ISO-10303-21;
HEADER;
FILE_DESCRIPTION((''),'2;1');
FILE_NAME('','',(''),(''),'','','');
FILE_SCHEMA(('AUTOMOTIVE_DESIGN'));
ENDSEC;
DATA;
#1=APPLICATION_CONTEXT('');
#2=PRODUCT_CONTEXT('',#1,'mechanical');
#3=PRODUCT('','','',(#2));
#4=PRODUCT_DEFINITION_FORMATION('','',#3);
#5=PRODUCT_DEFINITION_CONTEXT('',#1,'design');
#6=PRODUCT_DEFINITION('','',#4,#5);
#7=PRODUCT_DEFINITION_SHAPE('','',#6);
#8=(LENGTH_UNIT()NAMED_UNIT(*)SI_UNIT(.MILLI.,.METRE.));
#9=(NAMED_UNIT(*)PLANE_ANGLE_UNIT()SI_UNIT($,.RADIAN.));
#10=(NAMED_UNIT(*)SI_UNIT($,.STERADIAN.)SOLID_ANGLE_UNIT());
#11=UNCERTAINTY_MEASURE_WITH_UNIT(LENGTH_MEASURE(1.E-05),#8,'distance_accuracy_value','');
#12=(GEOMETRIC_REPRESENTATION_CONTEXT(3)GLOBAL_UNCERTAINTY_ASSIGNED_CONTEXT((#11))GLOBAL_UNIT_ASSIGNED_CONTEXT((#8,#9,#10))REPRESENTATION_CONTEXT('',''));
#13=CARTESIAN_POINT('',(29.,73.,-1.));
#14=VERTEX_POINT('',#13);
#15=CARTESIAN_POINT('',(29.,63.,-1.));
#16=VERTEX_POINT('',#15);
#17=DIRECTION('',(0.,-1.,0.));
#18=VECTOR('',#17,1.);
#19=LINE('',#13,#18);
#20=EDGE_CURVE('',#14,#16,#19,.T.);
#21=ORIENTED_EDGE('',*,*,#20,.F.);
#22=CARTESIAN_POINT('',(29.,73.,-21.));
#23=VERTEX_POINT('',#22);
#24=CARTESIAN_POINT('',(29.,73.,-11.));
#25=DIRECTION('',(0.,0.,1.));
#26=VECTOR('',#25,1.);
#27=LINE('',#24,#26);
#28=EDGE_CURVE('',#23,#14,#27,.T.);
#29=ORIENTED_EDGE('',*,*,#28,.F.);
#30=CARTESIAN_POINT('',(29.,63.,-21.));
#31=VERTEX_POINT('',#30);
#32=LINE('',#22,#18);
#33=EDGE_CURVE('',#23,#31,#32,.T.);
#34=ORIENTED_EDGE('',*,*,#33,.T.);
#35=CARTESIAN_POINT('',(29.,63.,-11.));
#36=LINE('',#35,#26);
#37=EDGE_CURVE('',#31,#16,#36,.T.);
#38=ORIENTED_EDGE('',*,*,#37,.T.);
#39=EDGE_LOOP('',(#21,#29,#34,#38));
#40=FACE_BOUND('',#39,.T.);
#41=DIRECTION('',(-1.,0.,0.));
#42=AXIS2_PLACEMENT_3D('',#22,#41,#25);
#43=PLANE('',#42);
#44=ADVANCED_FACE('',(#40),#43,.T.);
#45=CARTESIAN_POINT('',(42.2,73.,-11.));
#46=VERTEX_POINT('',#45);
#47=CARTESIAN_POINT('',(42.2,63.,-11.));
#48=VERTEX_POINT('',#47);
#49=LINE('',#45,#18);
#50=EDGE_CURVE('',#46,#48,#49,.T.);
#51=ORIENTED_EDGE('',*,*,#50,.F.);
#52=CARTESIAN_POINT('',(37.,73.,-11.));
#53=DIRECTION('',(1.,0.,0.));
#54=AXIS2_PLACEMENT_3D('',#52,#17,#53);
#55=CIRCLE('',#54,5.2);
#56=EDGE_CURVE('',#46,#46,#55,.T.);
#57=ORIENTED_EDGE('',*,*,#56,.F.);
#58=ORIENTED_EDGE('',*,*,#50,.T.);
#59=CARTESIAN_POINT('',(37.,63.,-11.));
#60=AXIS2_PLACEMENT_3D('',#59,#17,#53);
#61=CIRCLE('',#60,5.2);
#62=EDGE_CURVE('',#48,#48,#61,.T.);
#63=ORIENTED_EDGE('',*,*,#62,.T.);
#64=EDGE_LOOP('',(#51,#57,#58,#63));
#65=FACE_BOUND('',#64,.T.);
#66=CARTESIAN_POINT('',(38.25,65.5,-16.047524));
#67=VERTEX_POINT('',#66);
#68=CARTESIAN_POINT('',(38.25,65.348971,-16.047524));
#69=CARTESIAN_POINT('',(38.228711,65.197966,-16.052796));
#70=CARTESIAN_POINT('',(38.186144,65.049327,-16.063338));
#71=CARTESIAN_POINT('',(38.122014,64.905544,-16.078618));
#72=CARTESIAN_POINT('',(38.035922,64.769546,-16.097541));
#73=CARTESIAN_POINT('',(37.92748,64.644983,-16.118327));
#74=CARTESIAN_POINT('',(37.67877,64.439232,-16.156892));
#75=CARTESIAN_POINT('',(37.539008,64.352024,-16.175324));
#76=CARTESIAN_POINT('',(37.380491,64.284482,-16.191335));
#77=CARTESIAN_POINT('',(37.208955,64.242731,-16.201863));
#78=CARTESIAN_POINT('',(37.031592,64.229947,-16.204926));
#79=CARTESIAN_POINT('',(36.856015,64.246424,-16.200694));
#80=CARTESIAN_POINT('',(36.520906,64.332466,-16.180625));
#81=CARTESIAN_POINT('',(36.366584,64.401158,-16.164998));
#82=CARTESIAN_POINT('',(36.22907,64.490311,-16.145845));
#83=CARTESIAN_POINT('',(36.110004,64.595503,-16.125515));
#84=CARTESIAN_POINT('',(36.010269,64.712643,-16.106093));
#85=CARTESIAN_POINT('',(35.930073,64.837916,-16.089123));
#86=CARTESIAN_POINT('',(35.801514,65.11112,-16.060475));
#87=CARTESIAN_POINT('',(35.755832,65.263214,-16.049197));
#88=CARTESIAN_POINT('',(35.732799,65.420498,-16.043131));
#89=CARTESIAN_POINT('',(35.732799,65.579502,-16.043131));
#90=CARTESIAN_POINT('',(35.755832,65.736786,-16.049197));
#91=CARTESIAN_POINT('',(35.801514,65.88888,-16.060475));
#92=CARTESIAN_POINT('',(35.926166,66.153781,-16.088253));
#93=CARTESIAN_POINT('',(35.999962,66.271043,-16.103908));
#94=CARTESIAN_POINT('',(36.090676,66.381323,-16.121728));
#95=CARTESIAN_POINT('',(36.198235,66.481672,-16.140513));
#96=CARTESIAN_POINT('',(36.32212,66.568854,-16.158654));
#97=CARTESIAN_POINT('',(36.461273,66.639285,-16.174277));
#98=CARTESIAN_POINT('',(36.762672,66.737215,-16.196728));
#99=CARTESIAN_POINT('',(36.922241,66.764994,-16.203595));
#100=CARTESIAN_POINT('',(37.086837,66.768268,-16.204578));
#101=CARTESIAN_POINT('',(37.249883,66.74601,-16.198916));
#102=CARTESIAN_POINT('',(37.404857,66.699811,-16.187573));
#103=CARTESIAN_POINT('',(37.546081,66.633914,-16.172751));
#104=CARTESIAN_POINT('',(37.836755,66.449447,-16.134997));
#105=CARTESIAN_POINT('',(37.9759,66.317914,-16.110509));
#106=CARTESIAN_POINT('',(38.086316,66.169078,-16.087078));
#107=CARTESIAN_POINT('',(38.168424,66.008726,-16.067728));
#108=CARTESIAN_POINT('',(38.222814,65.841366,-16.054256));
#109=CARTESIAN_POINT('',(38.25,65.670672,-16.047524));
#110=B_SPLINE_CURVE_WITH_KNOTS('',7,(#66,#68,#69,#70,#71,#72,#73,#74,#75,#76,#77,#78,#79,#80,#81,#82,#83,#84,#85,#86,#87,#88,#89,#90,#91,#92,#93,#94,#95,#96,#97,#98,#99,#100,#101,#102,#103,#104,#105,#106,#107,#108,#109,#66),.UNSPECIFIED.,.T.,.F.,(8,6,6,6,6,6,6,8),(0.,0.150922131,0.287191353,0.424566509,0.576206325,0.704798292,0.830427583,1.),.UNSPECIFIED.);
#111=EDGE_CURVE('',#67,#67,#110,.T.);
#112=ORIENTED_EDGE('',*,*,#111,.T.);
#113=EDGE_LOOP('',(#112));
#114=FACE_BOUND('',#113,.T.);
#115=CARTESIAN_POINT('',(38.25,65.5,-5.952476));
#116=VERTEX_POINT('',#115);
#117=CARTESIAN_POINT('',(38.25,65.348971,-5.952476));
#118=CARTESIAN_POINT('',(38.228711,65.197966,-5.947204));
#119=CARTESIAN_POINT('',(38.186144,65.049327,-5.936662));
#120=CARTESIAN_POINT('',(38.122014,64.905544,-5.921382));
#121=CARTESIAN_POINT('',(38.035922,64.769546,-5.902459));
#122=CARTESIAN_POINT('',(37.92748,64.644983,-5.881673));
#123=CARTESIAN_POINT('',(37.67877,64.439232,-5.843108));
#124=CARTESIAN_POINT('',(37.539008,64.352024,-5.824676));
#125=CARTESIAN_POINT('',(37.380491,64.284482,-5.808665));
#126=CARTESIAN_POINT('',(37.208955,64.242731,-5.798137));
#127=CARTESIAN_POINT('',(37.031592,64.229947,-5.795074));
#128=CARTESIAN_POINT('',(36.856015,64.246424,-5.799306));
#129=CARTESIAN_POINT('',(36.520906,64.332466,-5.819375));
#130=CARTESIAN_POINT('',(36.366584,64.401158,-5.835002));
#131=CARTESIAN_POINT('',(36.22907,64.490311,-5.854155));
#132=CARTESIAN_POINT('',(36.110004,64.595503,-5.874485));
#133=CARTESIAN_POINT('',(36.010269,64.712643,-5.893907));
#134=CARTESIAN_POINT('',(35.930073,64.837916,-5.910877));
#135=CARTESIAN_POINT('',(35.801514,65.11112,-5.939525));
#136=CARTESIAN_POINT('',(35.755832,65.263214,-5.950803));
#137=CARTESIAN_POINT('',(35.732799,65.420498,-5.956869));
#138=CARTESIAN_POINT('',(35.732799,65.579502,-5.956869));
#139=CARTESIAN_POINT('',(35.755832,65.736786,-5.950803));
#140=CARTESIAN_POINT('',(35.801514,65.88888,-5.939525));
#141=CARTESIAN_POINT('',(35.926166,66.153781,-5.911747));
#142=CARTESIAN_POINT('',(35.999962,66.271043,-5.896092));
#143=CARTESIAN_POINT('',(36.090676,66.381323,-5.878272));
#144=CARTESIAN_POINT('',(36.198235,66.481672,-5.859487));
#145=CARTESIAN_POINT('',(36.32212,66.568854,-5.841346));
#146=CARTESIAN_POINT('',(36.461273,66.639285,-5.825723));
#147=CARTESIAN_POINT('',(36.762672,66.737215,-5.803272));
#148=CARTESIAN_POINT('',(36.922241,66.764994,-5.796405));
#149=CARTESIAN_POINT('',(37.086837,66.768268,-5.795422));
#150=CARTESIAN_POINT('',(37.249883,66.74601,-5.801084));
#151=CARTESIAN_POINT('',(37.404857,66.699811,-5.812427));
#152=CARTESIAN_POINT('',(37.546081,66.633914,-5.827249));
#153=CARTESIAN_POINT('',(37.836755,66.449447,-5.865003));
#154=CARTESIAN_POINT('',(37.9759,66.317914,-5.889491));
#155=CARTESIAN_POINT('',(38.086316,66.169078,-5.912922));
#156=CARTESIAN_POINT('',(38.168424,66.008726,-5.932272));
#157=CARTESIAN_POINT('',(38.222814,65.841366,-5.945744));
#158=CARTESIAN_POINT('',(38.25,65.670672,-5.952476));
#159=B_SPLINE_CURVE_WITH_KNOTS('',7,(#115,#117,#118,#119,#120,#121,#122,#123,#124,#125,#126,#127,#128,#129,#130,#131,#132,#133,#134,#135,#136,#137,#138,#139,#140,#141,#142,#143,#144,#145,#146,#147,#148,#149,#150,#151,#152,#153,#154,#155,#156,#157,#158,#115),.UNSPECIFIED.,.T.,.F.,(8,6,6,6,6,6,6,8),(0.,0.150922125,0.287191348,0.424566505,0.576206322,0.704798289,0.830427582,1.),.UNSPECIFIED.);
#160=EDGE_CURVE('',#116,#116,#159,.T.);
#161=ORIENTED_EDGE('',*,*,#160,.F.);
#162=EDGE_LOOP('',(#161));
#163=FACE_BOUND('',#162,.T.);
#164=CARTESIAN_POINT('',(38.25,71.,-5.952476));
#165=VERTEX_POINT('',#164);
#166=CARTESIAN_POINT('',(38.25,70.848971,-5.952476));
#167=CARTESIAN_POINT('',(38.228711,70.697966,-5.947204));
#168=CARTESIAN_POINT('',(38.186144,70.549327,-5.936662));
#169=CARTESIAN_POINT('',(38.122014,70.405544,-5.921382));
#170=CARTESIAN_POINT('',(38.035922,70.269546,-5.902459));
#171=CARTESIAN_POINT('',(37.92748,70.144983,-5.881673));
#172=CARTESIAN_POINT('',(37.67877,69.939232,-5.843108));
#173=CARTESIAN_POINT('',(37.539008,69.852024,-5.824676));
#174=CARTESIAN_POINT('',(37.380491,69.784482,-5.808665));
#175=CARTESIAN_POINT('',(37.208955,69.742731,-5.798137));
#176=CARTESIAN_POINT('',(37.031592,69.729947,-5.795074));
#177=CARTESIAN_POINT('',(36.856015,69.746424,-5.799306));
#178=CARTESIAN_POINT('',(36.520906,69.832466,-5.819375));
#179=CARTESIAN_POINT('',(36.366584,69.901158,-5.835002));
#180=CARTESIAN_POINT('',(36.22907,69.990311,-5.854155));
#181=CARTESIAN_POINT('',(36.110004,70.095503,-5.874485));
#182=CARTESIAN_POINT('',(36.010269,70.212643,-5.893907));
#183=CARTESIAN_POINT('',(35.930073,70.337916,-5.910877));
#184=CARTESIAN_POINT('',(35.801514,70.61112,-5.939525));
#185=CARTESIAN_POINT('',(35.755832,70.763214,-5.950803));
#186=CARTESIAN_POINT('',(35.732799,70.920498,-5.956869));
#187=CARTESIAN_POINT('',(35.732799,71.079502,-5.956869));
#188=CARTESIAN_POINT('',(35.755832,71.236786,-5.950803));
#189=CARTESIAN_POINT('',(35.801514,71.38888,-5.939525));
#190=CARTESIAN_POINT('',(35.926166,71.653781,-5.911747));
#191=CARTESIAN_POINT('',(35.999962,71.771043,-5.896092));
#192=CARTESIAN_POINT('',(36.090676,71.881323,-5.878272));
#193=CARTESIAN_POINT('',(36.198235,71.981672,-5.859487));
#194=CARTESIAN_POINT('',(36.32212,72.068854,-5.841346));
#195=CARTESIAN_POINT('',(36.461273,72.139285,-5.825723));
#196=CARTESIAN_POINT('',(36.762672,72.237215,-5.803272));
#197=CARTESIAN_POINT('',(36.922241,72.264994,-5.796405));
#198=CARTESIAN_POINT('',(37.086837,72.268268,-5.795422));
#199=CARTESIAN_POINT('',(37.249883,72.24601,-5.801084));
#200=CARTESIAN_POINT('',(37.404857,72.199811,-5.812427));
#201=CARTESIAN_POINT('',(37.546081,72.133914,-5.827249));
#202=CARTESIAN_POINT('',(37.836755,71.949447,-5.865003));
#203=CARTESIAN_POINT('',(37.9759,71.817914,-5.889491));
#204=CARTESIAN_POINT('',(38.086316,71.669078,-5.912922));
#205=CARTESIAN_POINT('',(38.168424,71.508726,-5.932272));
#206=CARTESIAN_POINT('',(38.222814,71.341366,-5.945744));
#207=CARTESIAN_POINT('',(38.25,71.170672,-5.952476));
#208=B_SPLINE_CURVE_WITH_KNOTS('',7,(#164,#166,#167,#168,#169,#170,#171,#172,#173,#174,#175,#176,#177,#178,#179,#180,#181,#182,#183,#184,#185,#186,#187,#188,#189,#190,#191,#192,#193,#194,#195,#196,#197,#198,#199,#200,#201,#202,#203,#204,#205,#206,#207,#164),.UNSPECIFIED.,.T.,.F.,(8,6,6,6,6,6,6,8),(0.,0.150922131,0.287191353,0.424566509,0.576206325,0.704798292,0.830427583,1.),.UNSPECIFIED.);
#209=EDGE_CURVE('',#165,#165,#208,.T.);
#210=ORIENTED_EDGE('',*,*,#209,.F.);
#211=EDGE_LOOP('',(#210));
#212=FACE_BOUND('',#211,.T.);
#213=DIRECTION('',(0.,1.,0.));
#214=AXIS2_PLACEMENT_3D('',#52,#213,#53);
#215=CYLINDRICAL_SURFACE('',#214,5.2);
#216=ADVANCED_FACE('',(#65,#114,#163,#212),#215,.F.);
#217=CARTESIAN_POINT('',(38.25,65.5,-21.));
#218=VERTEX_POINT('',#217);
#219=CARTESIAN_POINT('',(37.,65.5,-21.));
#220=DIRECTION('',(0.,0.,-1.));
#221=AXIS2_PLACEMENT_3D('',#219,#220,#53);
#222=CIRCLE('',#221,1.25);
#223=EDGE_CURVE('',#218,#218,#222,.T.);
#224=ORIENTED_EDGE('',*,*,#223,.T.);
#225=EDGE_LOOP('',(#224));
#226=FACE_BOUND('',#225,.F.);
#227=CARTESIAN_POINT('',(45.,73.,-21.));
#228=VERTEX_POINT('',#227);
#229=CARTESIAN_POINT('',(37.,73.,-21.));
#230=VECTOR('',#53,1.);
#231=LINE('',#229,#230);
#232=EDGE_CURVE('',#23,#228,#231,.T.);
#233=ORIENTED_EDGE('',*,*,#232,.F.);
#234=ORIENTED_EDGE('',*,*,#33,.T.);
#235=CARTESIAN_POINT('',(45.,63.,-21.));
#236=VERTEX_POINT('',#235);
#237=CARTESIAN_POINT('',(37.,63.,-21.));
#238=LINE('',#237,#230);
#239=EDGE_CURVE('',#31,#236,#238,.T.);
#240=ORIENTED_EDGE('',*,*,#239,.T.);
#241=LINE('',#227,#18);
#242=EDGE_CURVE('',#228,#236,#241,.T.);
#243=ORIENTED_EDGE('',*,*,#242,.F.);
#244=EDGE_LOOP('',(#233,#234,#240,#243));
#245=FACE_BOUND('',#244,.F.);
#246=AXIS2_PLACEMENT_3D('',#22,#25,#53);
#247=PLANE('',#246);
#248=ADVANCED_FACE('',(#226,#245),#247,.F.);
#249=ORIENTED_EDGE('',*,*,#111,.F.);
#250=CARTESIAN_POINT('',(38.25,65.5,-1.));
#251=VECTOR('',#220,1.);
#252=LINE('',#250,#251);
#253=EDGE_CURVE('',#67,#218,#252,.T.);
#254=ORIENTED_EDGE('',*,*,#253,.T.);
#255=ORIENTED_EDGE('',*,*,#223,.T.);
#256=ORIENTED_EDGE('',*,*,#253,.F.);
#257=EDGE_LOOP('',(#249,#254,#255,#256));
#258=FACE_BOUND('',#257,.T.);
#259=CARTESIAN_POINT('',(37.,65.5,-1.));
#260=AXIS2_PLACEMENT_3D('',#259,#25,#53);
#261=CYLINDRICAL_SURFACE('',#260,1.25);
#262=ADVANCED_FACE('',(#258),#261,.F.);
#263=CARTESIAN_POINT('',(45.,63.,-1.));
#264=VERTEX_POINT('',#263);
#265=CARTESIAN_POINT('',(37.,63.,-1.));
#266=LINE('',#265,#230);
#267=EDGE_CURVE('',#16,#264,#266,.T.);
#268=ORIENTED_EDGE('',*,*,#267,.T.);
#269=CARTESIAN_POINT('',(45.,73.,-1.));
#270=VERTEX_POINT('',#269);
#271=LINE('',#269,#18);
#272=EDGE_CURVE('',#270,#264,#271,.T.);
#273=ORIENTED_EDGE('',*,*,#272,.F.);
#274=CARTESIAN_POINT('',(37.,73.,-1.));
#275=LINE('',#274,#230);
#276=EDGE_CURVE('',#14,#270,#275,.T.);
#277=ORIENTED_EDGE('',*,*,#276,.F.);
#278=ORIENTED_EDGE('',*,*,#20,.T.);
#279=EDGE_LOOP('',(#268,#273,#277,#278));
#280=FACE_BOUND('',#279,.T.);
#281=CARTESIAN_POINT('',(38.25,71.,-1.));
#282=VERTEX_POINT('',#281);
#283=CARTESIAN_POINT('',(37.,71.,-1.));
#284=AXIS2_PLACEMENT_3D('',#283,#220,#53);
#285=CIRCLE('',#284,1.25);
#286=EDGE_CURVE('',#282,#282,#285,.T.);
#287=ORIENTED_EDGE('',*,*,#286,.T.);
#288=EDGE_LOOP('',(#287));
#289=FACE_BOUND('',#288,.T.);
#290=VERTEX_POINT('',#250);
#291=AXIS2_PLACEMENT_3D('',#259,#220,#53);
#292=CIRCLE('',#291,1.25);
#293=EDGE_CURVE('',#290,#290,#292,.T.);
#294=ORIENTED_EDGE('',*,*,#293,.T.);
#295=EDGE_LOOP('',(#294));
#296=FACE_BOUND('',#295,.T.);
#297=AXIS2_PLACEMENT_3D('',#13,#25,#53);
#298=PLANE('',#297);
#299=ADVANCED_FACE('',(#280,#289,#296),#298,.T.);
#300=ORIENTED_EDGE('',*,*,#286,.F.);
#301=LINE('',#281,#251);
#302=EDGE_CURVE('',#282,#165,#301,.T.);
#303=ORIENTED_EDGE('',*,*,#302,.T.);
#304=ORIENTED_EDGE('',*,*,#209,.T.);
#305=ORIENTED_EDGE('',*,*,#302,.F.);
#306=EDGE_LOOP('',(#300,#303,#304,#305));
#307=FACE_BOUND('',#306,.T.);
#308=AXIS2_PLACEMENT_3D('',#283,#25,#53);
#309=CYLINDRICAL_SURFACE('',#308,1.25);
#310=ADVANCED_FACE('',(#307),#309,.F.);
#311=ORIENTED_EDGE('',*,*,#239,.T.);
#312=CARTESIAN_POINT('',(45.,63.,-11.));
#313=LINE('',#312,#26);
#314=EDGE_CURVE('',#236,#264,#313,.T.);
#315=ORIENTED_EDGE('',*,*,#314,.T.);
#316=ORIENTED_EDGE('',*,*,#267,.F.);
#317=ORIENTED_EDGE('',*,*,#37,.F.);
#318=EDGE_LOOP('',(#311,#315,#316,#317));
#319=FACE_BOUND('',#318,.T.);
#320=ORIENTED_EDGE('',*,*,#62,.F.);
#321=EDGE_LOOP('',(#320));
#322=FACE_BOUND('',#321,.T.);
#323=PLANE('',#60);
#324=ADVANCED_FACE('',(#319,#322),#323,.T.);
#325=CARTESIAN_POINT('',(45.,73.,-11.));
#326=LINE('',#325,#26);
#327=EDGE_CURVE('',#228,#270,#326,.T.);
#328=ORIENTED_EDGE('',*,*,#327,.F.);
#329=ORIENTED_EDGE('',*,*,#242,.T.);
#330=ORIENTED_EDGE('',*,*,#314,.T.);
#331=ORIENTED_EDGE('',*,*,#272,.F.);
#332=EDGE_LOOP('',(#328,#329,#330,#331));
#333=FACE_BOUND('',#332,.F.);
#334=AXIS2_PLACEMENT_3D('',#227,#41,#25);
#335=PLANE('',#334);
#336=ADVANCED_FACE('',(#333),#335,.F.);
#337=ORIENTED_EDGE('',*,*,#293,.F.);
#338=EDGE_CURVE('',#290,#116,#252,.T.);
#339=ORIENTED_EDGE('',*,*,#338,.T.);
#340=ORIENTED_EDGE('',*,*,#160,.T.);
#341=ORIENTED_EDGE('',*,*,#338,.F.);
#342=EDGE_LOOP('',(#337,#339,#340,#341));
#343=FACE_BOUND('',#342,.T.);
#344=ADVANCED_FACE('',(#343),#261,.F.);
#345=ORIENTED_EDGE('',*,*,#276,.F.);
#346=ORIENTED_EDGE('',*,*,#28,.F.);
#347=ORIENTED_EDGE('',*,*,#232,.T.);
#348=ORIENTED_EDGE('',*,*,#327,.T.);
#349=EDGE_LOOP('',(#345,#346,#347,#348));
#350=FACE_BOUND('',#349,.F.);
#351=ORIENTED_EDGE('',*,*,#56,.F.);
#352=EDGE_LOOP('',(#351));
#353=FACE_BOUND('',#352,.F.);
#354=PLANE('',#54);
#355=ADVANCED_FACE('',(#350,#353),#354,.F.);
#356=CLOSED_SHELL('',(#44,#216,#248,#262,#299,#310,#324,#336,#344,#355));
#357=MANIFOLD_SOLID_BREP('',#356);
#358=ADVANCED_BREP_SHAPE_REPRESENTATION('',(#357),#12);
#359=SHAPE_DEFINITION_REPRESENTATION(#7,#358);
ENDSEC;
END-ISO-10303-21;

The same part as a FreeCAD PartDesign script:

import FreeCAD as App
import Part
import Sketcher

doc = App.newDocument("Part")
body = doc.addObject("PartDesign::Body", "Body")

# Sketch on XY plane
sketch1 = body.newObject("Sketcher::SketchObject", "Sketch")
sketch1.AttachmentSupport = (doc.getObject("XY_Plane"), [""])
sketch1.MapMode = "FlatFace"
sketch1.addGeometry(Part.Circle(App.Vector(0, 0, 0), App.Vector(0, 0, 1), 1.25), False)
sketch1.addConstraint([
    Sketcher.Constraint("Coincident", 0, 3, -1, 1),
    Sketcher.Constraint("Diameter", 0, 2.5),
])
pad1 = body.newObject("PartDesign::Pad", "Pad")
pad1.Profile = sketch1
pad1.Length = 10
body2 = doc.addObject("PartDesign::Body", "Body001")
doc.recompute()

body.Placement = App.Placement(App.Vector(0, 0, 0), App.Rotation(App.Vector(1, 0, 0), 90))
boolean = body2.newObject("PartDesign::Boolean", "Boolean")
boolean.Type = "Fuse"
boolean.addObjects([body])
body3 = doc.addObject("PartDesign::Body", "Body002")
doc.recompute()

body2.Placement = App.Placement(App.Vector(0, 10, 2), App.Rotation(App.Vector(0, 0, 1), 0))
boolean2 = body3.newObject("PartDesign::Boolean", "Boolean001")
boolean2.Type = "Fuse"
boolean2.addObjects([body2])
body4 = doc.addObject("PartDesign::Body", "Body003")

# Sketch on XY plane
sketch2 = body4.newObject("Sketcher::SketchObject", "Sketch001")
sketch2.AttachmentSupport = (doc.getObject("XY_Plane003"), [""])
sketch2.MapMode = "FlatFace"
sketch2.addGeometry(Part.Circle(App.Vector(0, 0, 0), App.Vector(0, 0, 1), 1.25), False)
sketch2.addConstraint([
    Sketcher.Constraint("Coincident", 0, 3, -1, 1),
    Sketcher.Constraint("Diameter", 0, 2.5),
])
pad2 = body4.newObject("PartDesign::Pad", "Pad001")
pad2.Profile = sketch2
pad2.Length = 20
body5 = doc.addObject("PartDesign::Body", "Body004")
doc.recompute()

body4.Placement = App.Placement(App.Vector(0, 0, 0), App.Rotation(App.Vector(1, 0, 0), 90))
boolean3 = body5.newObject("PartDesign::Boolean", "Boolean002")
boolean3.Type = "Fuse"
boolean3.addObjects([body4])
body6 = doc.addObject("PartDesign::Body", "Body005")
body6.AllowCompound = True
doc.recompute()

body5.Placement = App.Placement(App.Vector(0, 10, 7.5), App.Rotation(App.Vector(0, 0, 1), 0))
boolean4 = body6.newObject("PartDesign::Boolean", "Boolean003")
boolean4.Type = "Fuse"
boolean4.addObjects([body5])
doc.recompute()

boolean5 = body6.newObject("PartDesign::Boolean", "Boolean004")
boolean5.Type = "Fuse"
boolean5.addObjects([body3])
body7 = doc.addObject("PartDesign::Body", "Body006")

# Sketch on XY plane
sketch3 = body7.newObject("Sketcher::SketchObject", "Sketch002")
sketch3.AttachmentSupport = (doc.getObject("XY_Plane006"), [""])
sketch3.MapMode = "FlatFace"
sketch3.addGeometry(Part.Circle(App.Vector(0, 0, 0), App.Vector(0, 0, 1), 5.2), False)
sketch3.addConstraint([
    Sketcher.Constraint("Coincident", 0, 3, -1, 1),
    Sketcher.Constraint("Diameter", 0, 10.4),
])
pad3 = body7.newObject("PartDesign::Pad", "Pad002")
pad3.Profile = sketch3
pad3.Length = 10
body8 = doc.addObject("PartDesign::Body", "Body007")

# Sketch on XY plane
sketch4 = body8.newObject("Sketcher::SketchObject", "Sketch003")
sketch4.AttachmentSupport = (doc.getObject("XY_Plane007"), [""])
sketch4.MapMode = "FlatFace"
sketch4.addGeometry([
    Part.LineSegment(App.Vector(-8, 10, 0), App.Vector(-8, -10, 0)),
    Part.LineSegment(App.Vector(-8, -10, 0), App.Vector(8, -10, 0)),
    Part.LineSegment(App.Vector(8, -10, 0), App.Vector(8, 10, 0)),
    Part.LineSegment(App.Vector(8, 10, 0), App.Vector(-8, 10, 0)),
], False)
sketch4.addConstraint([
    Sketcher.Constraint("Coincident", 0, 2, 1, 1),
    Sketcher.Constraint("Coincident", 1, 2, 2, 1),
    Sketcher.Constraint("Coincident", 2, 2, 3, 1),
    Sketcher.Constraint("Coincident", 3, 2, 0, 1),
    Sketcher.Constraint("Vertical", 0),
    Sketcher.Constraint("Horizontal", 1),
    Sketcher.Constraint("Vertical", 2),
    Sketcher.Constraint("Horizontal", 3),
    Sketcher.Constraint("Symmetric", 0, 2, 2, 2, -1, 1),
    Sketcher.Constraint("DistanceX", 1, 1, 1, 2, 16.0),
    Sketcher.Constraint("DistanceY", 0, 2, 0, 1, 20.0),
])
pad4 = body8.newObject("PartDesign::Pad", "Pad003")
pad4.Profile = sketch4
pad4.Length = 10
doc.recompute()

boolean6 = body8.newObject("PartDesign::Boolean", "Boolean005")
boolean6.Type = "Cut"
boolean6.addObjects([body7])
doc.recompute()

boolean7 = body8.newObject("PartDesign::Boolean", "Boolean006")
boolean7.Type = "Cut"
boolean7.addObjects([body6])
body9 = doc.addObject("PartDesign::Body", "Body008")
doc.recompute()

body8.Placement = App.Placement(App.Vector(0, 0, 0), App.Rotation(App.Vector(1, 0, 0), 90))
boolean8 = body9.newObject("PartDesign::Boolean", "Boolean007")
boolean8.Type = "Fuse"
boolean8.addObjects([body8])
body10 = doc.addObject("PartDesign::Body", "Body009")
doc.recompute()

body9.Placement = App.Placement(App.Vector(37, 73, -11), App.Rotation(App.Vector(0, 0, 1), 0))
boolean9 = body10.newObject("PartDesign::Boolean", "Boolean008")
boolean9.Type = "Fuse"
boolean9.addObjects([body9])

doc.recompute()
